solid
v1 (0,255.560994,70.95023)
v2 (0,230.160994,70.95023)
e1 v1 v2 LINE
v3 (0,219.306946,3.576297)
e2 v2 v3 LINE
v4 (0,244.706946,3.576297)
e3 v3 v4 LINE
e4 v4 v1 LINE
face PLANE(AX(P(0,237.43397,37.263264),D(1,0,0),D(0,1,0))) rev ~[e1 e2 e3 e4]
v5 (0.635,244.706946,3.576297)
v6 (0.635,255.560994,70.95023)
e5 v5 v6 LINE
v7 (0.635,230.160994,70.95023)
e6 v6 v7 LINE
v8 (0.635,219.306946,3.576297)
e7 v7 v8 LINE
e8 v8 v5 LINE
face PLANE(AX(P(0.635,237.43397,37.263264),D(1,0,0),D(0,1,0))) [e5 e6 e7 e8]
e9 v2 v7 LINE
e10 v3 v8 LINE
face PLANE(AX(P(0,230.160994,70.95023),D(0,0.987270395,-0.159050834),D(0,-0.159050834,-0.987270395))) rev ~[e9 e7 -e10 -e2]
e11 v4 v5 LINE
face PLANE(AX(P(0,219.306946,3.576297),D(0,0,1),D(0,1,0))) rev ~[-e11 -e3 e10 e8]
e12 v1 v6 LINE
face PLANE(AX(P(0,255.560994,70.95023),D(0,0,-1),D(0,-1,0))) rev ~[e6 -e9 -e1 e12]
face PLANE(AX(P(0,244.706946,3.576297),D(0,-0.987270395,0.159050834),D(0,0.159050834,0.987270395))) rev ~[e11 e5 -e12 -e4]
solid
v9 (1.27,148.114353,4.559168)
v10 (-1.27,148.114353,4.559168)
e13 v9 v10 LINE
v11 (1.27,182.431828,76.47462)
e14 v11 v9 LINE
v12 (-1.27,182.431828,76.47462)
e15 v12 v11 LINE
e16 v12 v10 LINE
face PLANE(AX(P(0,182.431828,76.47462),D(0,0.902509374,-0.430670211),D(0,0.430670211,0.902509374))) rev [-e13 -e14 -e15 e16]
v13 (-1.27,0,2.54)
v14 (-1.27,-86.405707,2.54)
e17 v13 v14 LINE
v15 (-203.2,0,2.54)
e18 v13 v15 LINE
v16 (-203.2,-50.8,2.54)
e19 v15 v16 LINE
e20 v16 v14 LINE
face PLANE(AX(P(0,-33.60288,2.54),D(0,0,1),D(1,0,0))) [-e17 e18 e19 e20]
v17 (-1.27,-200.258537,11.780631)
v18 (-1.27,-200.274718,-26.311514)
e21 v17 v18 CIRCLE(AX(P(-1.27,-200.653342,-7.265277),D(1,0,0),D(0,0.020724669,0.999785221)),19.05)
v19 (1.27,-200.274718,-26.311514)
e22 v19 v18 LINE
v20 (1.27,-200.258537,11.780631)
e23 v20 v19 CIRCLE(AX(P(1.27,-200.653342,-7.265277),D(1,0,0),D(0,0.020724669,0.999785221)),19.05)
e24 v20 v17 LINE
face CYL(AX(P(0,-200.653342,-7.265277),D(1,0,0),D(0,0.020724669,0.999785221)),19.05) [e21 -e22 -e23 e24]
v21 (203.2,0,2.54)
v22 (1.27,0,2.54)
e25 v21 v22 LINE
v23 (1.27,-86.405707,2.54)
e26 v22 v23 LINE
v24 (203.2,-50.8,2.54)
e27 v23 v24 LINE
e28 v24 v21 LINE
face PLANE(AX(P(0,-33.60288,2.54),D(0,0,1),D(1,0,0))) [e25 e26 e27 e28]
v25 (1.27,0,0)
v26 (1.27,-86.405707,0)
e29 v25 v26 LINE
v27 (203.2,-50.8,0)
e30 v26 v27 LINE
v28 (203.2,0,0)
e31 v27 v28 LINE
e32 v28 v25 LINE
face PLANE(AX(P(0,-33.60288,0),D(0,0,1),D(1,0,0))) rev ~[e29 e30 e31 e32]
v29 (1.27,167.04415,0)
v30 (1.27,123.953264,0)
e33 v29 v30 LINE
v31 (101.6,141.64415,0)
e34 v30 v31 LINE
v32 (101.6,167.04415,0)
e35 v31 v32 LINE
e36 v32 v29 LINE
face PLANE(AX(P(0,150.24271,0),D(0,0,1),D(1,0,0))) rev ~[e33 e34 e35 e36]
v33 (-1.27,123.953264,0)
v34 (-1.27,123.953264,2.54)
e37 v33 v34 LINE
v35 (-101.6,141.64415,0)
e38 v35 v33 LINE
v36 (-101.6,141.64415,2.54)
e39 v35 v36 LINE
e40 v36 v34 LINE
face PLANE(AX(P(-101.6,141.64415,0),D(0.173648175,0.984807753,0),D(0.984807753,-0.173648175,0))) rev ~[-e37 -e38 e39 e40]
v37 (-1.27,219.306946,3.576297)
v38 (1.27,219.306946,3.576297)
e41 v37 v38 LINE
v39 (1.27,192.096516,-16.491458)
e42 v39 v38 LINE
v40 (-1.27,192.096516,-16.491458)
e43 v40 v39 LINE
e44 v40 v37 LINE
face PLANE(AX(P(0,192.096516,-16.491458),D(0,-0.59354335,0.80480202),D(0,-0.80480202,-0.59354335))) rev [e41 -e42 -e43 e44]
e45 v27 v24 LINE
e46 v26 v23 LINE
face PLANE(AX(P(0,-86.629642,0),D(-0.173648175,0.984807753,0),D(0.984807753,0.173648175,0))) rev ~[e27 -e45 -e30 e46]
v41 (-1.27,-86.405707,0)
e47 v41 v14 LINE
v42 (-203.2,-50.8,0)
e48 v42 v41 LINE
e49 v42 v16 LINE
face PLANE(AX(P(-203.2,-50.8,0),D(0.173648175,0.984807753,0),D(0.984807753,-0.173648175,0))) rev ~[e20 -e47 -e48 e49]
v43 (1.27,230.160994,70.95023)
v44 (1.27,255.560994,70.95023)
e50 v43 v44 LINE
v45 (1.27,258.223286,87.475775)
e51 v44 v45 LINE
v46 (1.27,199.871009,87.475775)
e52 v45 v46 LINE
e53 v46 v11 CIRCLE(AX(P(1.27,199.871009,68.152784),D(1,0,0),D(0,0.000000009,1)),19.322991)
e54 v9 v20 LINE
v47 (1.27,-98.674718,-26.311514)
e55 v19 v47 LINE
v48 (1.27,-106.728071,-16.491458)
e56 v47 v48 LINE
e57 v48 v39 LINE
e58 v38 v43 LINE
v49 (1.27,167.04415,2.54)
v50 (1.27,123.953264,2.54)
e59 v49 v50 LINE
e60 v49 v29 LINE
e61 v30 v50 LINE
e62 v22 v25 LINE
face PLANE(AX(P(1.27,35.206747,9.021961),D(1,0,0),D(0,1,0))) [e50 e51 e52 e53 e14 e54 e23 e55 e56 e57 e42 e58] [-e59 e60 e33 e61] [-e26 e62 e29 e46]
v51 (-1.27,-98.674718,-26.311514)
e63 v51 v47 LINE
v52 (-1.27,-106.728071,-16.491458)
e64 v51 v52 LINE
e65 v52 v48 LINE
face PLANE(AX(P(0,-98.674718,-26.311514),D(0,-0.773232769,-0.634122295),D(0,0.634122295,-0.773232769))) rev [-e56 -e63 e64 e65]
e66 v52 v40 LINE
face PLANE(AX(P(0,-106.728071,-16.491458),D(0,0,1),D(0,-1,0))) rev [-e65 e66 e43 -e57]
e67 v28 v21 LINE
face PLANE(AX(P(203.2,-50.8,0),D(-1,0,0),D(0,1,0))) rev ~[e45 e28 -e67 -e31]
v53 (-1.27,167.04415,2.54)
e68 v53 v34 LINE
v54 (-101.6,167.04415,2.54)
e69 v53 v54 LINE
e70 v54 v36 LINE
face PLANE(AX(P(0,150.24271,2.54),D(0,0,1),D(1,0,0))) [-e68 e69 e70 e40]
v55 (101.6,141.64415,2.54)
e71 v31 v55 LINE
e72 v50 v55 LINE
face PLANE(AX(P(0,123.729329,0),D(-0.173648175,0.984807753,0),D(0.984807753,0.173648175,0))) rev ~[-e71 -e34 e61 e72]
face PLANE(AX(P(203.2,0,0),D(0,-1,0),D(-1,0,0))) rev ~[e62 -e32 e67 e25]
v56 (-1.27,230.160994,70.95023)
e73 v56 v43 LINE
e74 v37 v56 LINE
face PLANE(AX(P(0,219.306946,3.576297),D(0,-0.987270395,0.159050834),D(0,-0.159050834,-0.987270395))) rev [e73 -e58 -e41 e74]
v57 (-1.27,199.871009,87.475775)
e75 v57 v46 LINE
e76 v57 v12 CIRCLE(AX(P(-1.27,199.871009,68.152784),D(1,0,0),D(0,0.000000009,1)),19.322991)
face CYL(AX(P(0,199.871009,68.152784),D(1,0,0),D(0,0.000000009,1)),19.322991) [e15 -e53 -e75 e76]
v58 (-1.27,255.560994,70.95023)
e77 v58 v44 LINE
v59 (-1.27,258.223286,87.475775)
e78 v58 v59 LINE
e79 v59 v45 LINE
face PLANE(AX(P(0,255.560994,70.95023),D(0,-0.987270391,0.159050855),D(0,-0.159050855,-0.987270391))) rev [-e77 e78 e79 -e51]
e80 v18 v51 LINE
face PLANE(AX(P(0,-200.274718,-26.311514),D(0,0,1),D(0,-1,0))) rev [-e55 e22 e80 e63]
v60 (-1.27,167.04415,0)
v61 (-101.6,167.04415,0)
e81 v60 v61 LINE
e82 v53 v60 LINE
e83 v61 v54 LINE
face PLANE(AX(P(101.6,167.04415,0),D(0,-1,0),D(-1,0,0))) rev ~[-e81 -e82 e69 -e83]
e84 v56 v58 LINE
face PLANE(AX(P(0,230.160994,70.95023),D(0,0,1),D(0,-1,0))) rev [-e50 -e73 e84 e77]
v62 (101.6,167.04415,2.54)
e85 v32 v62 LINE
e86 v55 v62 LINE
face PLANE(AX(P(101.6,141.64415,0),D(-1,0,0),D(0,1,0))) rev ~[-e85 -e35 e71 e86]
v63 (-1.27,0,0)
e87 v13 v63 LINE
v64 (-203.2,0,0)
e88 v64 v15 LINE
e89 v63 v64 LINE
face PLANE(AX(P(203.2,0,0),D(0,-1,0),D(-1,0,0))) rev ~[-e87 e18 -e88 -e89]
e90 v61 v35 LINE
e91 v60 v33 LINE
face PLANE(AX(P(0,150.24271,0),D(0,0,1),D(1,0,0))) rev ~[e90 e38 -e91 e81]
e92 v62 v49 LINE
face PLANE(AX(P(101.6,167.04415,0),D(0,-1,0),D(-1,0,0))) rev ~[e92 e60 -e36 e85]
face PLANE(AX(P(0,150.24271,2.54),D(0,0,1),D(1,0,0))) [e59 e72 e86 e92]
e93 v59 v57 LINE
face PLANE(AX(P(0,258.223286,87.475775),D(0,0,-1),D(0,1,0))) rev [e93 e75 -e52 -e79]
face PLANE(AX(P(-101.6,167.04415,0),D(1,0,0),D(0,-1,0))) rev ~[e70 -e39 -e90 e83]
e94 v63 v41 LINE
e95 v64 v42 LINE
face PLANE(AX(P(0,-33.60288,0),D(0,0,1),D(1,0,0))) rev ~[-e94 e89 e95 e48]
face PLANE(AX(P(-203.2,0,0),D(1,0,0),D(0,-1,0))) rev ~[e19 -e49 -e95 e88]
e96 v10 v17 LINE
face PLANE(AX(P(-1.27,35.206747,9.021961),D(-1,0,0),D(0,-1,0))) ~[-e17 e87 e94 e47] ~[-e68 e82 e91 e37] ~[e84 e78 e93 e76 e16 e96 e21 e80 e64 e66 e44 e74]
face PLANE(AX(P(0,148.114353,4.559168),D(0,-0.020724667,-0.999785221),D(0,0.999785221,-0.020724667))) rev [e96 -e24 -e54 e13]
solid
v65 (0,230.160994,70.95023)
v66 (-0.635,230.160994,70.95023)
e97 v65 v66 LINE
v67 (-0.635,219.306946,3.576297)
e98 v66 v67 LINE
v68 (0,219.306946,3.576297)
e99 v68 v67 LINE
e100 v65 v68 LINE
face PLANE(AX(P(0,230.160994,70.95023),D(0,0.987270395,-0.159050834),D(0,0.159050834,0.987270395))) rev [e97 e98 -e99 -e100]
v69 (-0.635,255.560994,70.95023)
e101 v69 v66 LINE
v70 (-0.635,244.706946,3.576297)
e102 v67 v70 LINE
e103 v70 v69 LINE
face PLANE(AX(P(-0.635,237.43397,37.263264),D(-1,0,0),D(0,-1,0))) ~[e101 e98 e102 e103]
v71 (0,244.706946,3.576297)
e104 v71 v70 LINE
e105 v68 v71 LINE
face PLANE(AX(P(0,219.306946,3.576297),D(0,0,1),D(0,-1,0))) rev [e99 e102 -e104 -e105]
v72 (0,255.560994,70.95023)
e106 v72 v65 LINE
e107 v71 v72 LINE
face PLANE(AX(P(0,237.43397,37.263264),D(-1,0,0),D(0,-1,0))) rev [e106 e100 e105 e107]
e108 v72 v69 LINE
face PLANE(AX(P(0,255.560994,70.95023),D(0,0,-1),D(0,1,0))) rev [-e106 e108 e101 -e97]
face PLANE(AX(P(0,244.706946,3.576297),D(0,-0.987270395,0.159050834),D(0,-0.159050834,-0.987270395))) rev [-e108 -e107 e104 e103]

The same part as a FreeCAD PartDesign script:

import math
import FreeCAD as App
import Part
import Sketcher

V = App.Vector
Q = App.Units.Quantity

doc = App.newDocument("Part")
params = doc.addObject("Spreadsheet::Sheet", "Params")
for row, (alias, value) in enumerate([
    ("sketch1_width", "4 in"),
    ("sketch1_width2", "1 in"),
    ("sketch1_radius", "0.75 in"),
    ("sketch1_length", "0.5 in"),
    ("pad1_length", "0.05 in"),
    ("sketch2_width", "16 in"),
    ("sketch2_height", "2 in"),
    ("pad2_length", "0.1 in"),
    ("sketch3_width", "8 in"),
    ("sketch3_height", "1 in"),
    ("pad3_length", "0.1 in"),
    ("sketch4_width", "1 in"),
    ("pad4_length", "0.025 in"),
], start=1):
    params.set(f"A{row}", alias)
    params.set(f"B{row}", "=" + value)
    params.setAlias(f"B{row}", alias)

body = doc.addObject("PartDesign::Body", "Body")

# Sketch on YZ plane
sketch1 = doc.addObject("Sketcher::SketchObject", "Sketch")
body.addObject(sketch1)
sketch1.AttachmentSupport = (doc.YZ_Plane, [""])
sketch1.MapMode = "FlatFace"
sketch1.addGeometry([
    Part.LineSegment(V(-200, -26, 0), V(-99, -26, 0)),  # 0
    Part.LineSegment(V(-99, -26, 0), V(-107, -16, 0)),  # 1
    Part.LineSegment(V(-107, -16, 0), V(192, -16, 0)),  # 2
    Part.LineSegment(V(192, -16, 0), V(219, 4, 0)),  # 3
    Part.LineSegment(V(219, 4, 0), V(230, 71, 0)),  # 4
    Part.LineSegment(V(230, 71, 0), V(256, 71, 0)),  # 5
    Part.LineSegment(V(256, 71, 0), V(258, 87, 0)),  # 6
    Part.LineSegment(V(258, 87, 0), V(200, 87, 0)),  # 7
    Part.ArcOfCircle(Part.Circle(V(200, 68, 0), V(0, 0, 1), 19), math.radians(90), math.radians(154)),  # 8
    Part.LineSegment(V(182, 76, 0), V(148, 5, 0)),  # 9
    Part.LineSegment(V(148, 5, 0), V(-200, 12, 0)),  # 10
    Part.ArcOfCircle(Part.Circle(V(-201, -7, 0), V(0, 0, 1), 19), math.radians(89), math.radians(271)),  # 11
], False)
sketch1.addConstraint([
    Sketcher.Constraint("Coincident", 0, 2, 1, 1),
    Sketcher.Constraint("Coincident", 1, 2, 2, 1),
    Sketcher.Constraint("Coincident", 2, 2, 3, 1),
    Sketcher.Constraint("Coincident", 3, 2, 4, 1),
    Sketcher.Constraint("Coincident", 4, 2, 5, 1),
    Sketcher.Constraint("Coincident", 5, 2, 6, 1),
    Sketcher.Constraint("Coincident", 6, 2, 7, 1),
    Sketcher.Constraint("Tangent", 7, 2, 8, 1),
    Sketcher.Constraint("Tangent", 8, 2, 9, 1),
    Sketcher.Constraint("Coincident", 9, 2, 10, 1),
    Sketcher.Constraint("Tangent", 10, 2, 11, 1),
    Sketcher.Constraint("Coincident", 11, 2, 0, 1),
    Sketcher.Constraint("Horizontal", 0),
    Sketcher.Constraint("Horizontal", 2),
    Sketcher.Constraint("Horizontal", 5),
    Sketcher.Constraint("Horizontal", 7),
    Sketcher.Constraint("Parallel", 4, 6),
    Sketcher.Constraint("DistanceX", 0, 1, 0, 2, Q("4 in")),
    Sketcher.Constraint("DistanceX", 5, 1, 5, 2, Q("1 in")),
    Sketcher.Constraint("Radius", 11, Q("0.75 in")),
    Sketcher.Constraint("Distance", 1, Q("0.5 in")),
    Sketcher.Constraint("Radius", 8, 19.322991),
    Sketcher.Constraint("Distance", 3, 33.810092),
    Sketcher.Constraint("Distance", 6, 16.738621),
    Sketcher.Constraint("Distance", 10, 348.447729),
    Sketcher.Constraint("DistanceX", 2, 1, 2, 2, 298.824587),
    Sketcher.Constraint("DistanceX", 7, 2, 7, 1, 58.352277),
    Sketcher.Constraint("DistanceX", -1, 1, 8, 3, 199.871009),
    Sketcher.Constraint("DistanceX", 11, 3, -1, 1, 200.653342),
    Sketcher.Constraint("DistanceX", 0, 2, -1, 1, 98.674718),
    Sketcher.Constraint("DistanceX", 1, 2, -1, 1, 106.728071),
    Sketcher.Constraint("DistanceY", 1, 2, -1, 1, 16.491458),
    Sketcher.Constraint("DistanceY", -1, 1, 4, 2, 70.95023),
    Sketcher.Constraint("DistanceY", -1, 1, 8, 2, 76.47462),
    Sketcher.Constraint("DistanceY", 11, 3, 8, 3, 75.418061),
])
sketch1.setExpression("Constraints[17]", "Params.sketch1_width")
sketch1.setExpression("Constraints[18]", "Params.sketch1_width2")
sketch1.setExpression("Constraints[19]", "Params.sketch1_radius")
sketch1.setExpression("Constraints[20]", "Params.sketch1_length")
pad1 = doc.addObject("PartDesign::Pad", "Pad")
body.addObject(pad1)
pad1.Profile = sketch1
pad1.setExpression("Length", "Params.pad1_length")
body2 = doc.addObject("PartDesign::Body", "Body001")
doc.recompute()

body2.BaseFeature = body
doc.recompute()

mirroring = doc.addObject("Part::Mirroring", "Mirroring")
mirroring.Source = body
mirroring.Base = V(0, 0, 0)
mirroring.Normal = V(1, 0, 0)
body3 = doc.addObject("PartDesign::Body", "Body002")
body3.BaseFeature = mirroring
boolean = doc.addObject("PartDesign::Boolean", "Boolean")
body2.addObject(boolean)
boolean.Type = "Fuse"
boolean.addObjects([body3])
doc.recompute()

# Sketch on XY plane
sketch2 = doc.addObject("Sketcher::SketchObject", "Sketch001")
body2.addObject(sketch2)
sketch2.AttachmentSupport = (doc.getObject("XY_Plane001"), [""])
sketch2.MapMode = "FlatFace"
sketch2.addGeometry([
    Part.LineSegment(V(203, 0, 0), V(-203, 0, 0)),  # 0
    Part.LineSegment(V(-203, 0, 0), V(-203, -51, 0)),  # 1
    Part.LineSegment(V(-203, -51, 0), V(0, -87, 0)),  # 2
    Part.LineSegment(V(0, -87, 0), V(203, -51, 0)),  # 3
    Part.LineSegment(V(203, -51, 0), V(203, 0, 0)),  # 4
], False)
sketch2.addConstraint([
    Sketcher.Constraint("Coincident", 0, 2, 1, 1),
    Sketcher.Constraint("Coincident", 1, 2, 2, 1),
    Sketcher.Constraint("Coincident", 2, 2, 3, 1),
    Sketcher.Constraint("Coincident", 3, 2, 4, 1),
    Sketcher.Constraint("Coincident", 4, 2, 0, 1),
    Sketcher.Constraint("Horizontal", 0),
    Sketcher.Constraint("Vertical", 1),
    Sketcher.Constraint("Vertical", 4),
    Sketcher.Constraint("Symmetric", 0, 2, 4, 2, -1, 1),
    Sketcher.Constraint("PointOnObject", 2, 2, -2),
    Sketcher.Constraint("Horizontal", 1, 2, 3, 2),
    Sketcher.Constraint("DistanceX", 0, 2, 0, 1, Q("16 in")),
    Sketcher.Constraint("DistanceY", 1, 2, 1, 1, Q("2 in")),
    Sketcher.Constraint("Angle", 2, Q("-10 deg")),
])
sketch2.setExpression("Constraints[11]", "Params.sketch2_width")
sketch2.setExpression("Constraints[12]", "Params.sketch2_height")
pad2 = doc.addObject("PartDesign::Pad", "Pad001")
body2.addObject(pad2)
pad2.Profile = sketch2
pad2.setExpression("Length", "Params.pad2_length")

# Sketch on XY plane
sketch3 = doc.addObject("Sketcher::SketchObject", "Sketch002")
body2.addObject(sketch3)
sketch3.AttachmentSupport = (doc.getObject("XY_Plane001"), [""])
sketch3.MapMode = "FlatFace"
sketch3.addGeometry([
    Part.LineSegment(V(102, 167, 0), V(-102, 167, 0)),  # 0
    Part.LineSegment(V(-102, 167, 0), V(-102, 142, 0)),  # 1
    Part.LineSegment(V(-102, 142, 0), V(0, 124, 0)),  # 2
    Part.LineSegment(V(0, 124, 0), V(102, 142, 0)),  # 3
    Part.LineSegment(V(102, 142, 0), V(102, 167, 0)),  # 4
], False)
sketch3.addConstraint([
    Sketcher.Constraint("Coincident", 0, 2, 1, 1),
    Sketcher.Constraint("Coincident", 1, 2, 2, 1),
    Sketcher.Constraint("Coincident", 2, 2, 3, 1),
    Sketcher.Constraint("Coincident", 3, 2, 4, 1),
    Sketcher.Constraint("Coincident", 4, 2, 0, 1),
    Sketcher.Constraint("Horizontal", 0),
    Sketcher.Constraint("Vertical", 1),
    Sketcher.Constraint("Vertical", 4),
    Sketcher.Constraint("Symmetric", 1, 2, 3, 2, -2),
    Sketcher.Constraint("PointOnObject", 2, 2, -2),
    Sketcher.Constraint("DistanceX", 0, 2, 0, 1, Q("8 in")),
    Sketcher.Constraint("DistanceY", 1, 2, 1, 1, Q("1 in")),
    Sketcher.Constraint("Angle", 2, Q("-10 deg")),
    Sketcher.Constraint("DistanceY", -1, 1, 0, 2, 167.04415),
])
sketch3.setExpression("Constraints[10]", "Params.sketch3_width")
sketch3.setExpression("Constraints[11]", "Params.sketch3_height")
pad3 = doc.addObject("PartDesign::Pad", "Pad002")
body2.addObject(pad3)
pad3.Profile = sketch3
pad3.setExpression("Length", "Params.pad3_length")
body4 = doc.addObject("PartDesign::Body", "Body003")

# Sketch on YZ plane
sketch4 = doc.addObject("Sketcher::SketchObject", "Sketch003")
body4.addObject(sketch4)
sketch4.AttachmentSupport = (doc.getObject("YZ_Plane003"), [""])
sketch4.MapMode = "FlatFace"
sketch4.addGeometry([
    Part.LineSegment(V(230, 71, 0), V(219, 4, 0)),
    Part.LineSegment(V(219, 4, 0), V(245, 4, 0)),
    Part.LineSegment(V(245, 4, 0), V(256, 71, 0)),
    Part.LineSegment(V(256, 71, 0), V(230, 71, 0)),
], False)
sketch4.addConstraint([
    Sketcher.Constraint("Coincident", 0, 2, 1, 1),
    Sketcher.Constraint("Coincident", 1, 2, 2, 1),
    Sketcher.Constraint("Coincident", 2, 2, 3, 1),
    Sketcher.Constraint("Coincident", 3, 2, 0, 1),
    Sketcher.Constraint("Horizontal", 1),
    Sketcher.Constraint("Horizontal", 3),
    Sketcher.Constraint("Parallel", 0, 2),
    Sketcher.Constraint("DistanceX", 1, 1, 1, 2, Q("1 in")),
    Sketcher.Constraint("DistanceY", -1, 1, 2, 2, 70.95023),
    Sketcher.Constraint("DistanceX", 1, 2, 2, 2, 10.854048),
    Sketcher.Constraint("Distance", 0, 68.242635),
    Sketcher.Constraint("DistanceX", -1, 1, 0, 2, 219.306946),
])
sketch4.setExpression("Constraints[7]", "Params.sketch4_width")
pad4 = doc.addObject("PartDesign::Pad", "Pad003")
body4.addObject(pad4)
pad4.Profile = sketch4
pad4.setExpression("Length", "Params.pad4_length")
body5 = doc.addObject("PartDesign::Body", "Body004")
doc.recompute()

mirroring2 = doc.addObject("Part::Mirroring", "Mirroring001")
mirroring2.Source = body4
mirroring2.Base = V(0, 0, 0)
mirroring2.Normal = V(1, 0, 0)
body5.BaseFeature = mirroring2
doc.recompute()
mirroring.Visibility = False
mirroring2.Visibility = False

doc.recompute()
